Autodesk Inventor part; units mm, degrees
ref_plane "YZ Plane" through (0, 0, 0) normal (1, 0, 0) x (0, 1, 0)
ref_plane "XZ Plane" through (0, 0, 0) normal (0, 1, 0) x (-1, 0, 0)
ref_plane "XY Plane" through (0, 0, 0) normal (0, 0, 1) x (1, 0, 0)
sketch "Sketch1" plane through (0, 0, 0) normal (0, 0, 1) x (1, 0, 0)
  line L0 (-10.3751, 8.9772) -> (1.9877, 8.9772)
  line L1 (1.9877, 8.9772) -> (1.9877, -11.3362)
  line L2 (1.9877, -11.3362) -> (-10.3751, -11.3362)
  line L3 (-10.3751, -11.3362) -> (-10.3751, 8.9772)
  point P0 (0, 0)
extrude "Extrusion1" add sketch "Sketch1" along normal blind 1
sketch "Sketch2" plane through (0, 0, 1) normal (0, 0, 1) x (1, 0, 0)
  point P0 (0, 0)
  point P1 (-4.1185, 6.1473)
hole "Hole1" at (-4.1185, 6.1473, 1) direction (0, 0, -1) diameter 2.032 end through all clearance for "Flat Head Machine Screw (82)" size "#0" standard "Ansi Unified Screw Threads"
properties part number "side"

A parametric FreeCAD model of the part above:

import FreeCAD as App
import Part
import Sketcher
from FreeCAD import Vector
Q = App.Units.Quantity

doc = App.newDocument("Part")
body = doc.addObject("PartDesign::Body", "Body")

# Sketch on XY plane
sketch1 = body.newObject("Sketcher::SketchObject", "Sketch")
sketch1.AttachmentSupport = (doc.getObject("XY_Plane"), [""])
sketch1.MapMode = "FlatFace"
sketch1.addGeometry([
    Part.LineSegment(Vector(2, 9, 0), Vector(-10, 9, 0)),
    Part.LineSegment(Vector(-10, 9, 0), Vector(-10, -11, 0)),
    Part.LineSegment(Vector(-10, -11, 0), Vector(2, -11, 0)),
    Part.LineSegment(Vector(2, -11, 0), Vector(2, 9, 0)),
], False)
sketch1.addConstraint([
    Sketcher.Constraint("Coincident", 0, 2, 1, 1),
    Sketcher.Constraint("Coincident", 1, 2, 2, 1),
    Sketcher.Constraint("Coincident", 2, 2, 3, 1),
    Sketcher.Constraint("Coincident", 3, 2, 0, 1),
    Sketcher.Constraint("Horizontal", 0),
    Sketcher.Constraint("Vertical", 1),
    Sketcher.Constraint("Horizontal", 2),
    Sketcher.Constraint("Vertical", 3),
    Sketcher.Constraint("DistanceX", 0, 2, 0, 1, Q("12.3628 mm")),
    Sketcher.Constraint("DistanceY", 1, 2, 1, 1, Q("20.3134 mm")),
    Sketcher.Constraint("DistanceX", 0, 2, -1, 1, Q("10.375 mm")),
    Sketcher.Constraint("DistanceY", -1, 1, 0, 2, Q("8.9772 mm")),
])
pad1 = body.newObject("PartDesign::Pad", "Pad")
pad1.Profile = sketch1
pad1.Length = 1

# Sketch on XY plane
sketch2 = body.newObject("Sketcher::SketchObject", "Sketch001")
sketch2.AttachmentSupport = (doc.getObject("XY_Plane"), [""])
sketch2.MapMode = "FlatFace"
sketch2.AttachmentOffset = App.Placement(Vector(0, 0, 1), App.Rotation())
sketch2.addGeometry(Part.Circle(Vector(-4.1, 6.1, 0), Vector(0, 0, 1), 1), False)
sketch2.addConstraint([
    Sketcher.Constraint("Diameter", 0, Q("2.032 mm")),
    Sketcher.Constraint("DistanceX", 0, 3, -1, 1, Q("4.1185 mm")),
    Sketcher.Constraint("DistanceY", -1, 1, 0, 3, Q("6.1473 mm")),
])
doc.recompute()
hole = body.newObject("PartDesign::Hole", "Hole")
hole.Profile = sketch2
hole.ThreadType = "None"
hole.Diameter = 2.032
hole.DepthType = "ThroughAll"

doc.recompute()
